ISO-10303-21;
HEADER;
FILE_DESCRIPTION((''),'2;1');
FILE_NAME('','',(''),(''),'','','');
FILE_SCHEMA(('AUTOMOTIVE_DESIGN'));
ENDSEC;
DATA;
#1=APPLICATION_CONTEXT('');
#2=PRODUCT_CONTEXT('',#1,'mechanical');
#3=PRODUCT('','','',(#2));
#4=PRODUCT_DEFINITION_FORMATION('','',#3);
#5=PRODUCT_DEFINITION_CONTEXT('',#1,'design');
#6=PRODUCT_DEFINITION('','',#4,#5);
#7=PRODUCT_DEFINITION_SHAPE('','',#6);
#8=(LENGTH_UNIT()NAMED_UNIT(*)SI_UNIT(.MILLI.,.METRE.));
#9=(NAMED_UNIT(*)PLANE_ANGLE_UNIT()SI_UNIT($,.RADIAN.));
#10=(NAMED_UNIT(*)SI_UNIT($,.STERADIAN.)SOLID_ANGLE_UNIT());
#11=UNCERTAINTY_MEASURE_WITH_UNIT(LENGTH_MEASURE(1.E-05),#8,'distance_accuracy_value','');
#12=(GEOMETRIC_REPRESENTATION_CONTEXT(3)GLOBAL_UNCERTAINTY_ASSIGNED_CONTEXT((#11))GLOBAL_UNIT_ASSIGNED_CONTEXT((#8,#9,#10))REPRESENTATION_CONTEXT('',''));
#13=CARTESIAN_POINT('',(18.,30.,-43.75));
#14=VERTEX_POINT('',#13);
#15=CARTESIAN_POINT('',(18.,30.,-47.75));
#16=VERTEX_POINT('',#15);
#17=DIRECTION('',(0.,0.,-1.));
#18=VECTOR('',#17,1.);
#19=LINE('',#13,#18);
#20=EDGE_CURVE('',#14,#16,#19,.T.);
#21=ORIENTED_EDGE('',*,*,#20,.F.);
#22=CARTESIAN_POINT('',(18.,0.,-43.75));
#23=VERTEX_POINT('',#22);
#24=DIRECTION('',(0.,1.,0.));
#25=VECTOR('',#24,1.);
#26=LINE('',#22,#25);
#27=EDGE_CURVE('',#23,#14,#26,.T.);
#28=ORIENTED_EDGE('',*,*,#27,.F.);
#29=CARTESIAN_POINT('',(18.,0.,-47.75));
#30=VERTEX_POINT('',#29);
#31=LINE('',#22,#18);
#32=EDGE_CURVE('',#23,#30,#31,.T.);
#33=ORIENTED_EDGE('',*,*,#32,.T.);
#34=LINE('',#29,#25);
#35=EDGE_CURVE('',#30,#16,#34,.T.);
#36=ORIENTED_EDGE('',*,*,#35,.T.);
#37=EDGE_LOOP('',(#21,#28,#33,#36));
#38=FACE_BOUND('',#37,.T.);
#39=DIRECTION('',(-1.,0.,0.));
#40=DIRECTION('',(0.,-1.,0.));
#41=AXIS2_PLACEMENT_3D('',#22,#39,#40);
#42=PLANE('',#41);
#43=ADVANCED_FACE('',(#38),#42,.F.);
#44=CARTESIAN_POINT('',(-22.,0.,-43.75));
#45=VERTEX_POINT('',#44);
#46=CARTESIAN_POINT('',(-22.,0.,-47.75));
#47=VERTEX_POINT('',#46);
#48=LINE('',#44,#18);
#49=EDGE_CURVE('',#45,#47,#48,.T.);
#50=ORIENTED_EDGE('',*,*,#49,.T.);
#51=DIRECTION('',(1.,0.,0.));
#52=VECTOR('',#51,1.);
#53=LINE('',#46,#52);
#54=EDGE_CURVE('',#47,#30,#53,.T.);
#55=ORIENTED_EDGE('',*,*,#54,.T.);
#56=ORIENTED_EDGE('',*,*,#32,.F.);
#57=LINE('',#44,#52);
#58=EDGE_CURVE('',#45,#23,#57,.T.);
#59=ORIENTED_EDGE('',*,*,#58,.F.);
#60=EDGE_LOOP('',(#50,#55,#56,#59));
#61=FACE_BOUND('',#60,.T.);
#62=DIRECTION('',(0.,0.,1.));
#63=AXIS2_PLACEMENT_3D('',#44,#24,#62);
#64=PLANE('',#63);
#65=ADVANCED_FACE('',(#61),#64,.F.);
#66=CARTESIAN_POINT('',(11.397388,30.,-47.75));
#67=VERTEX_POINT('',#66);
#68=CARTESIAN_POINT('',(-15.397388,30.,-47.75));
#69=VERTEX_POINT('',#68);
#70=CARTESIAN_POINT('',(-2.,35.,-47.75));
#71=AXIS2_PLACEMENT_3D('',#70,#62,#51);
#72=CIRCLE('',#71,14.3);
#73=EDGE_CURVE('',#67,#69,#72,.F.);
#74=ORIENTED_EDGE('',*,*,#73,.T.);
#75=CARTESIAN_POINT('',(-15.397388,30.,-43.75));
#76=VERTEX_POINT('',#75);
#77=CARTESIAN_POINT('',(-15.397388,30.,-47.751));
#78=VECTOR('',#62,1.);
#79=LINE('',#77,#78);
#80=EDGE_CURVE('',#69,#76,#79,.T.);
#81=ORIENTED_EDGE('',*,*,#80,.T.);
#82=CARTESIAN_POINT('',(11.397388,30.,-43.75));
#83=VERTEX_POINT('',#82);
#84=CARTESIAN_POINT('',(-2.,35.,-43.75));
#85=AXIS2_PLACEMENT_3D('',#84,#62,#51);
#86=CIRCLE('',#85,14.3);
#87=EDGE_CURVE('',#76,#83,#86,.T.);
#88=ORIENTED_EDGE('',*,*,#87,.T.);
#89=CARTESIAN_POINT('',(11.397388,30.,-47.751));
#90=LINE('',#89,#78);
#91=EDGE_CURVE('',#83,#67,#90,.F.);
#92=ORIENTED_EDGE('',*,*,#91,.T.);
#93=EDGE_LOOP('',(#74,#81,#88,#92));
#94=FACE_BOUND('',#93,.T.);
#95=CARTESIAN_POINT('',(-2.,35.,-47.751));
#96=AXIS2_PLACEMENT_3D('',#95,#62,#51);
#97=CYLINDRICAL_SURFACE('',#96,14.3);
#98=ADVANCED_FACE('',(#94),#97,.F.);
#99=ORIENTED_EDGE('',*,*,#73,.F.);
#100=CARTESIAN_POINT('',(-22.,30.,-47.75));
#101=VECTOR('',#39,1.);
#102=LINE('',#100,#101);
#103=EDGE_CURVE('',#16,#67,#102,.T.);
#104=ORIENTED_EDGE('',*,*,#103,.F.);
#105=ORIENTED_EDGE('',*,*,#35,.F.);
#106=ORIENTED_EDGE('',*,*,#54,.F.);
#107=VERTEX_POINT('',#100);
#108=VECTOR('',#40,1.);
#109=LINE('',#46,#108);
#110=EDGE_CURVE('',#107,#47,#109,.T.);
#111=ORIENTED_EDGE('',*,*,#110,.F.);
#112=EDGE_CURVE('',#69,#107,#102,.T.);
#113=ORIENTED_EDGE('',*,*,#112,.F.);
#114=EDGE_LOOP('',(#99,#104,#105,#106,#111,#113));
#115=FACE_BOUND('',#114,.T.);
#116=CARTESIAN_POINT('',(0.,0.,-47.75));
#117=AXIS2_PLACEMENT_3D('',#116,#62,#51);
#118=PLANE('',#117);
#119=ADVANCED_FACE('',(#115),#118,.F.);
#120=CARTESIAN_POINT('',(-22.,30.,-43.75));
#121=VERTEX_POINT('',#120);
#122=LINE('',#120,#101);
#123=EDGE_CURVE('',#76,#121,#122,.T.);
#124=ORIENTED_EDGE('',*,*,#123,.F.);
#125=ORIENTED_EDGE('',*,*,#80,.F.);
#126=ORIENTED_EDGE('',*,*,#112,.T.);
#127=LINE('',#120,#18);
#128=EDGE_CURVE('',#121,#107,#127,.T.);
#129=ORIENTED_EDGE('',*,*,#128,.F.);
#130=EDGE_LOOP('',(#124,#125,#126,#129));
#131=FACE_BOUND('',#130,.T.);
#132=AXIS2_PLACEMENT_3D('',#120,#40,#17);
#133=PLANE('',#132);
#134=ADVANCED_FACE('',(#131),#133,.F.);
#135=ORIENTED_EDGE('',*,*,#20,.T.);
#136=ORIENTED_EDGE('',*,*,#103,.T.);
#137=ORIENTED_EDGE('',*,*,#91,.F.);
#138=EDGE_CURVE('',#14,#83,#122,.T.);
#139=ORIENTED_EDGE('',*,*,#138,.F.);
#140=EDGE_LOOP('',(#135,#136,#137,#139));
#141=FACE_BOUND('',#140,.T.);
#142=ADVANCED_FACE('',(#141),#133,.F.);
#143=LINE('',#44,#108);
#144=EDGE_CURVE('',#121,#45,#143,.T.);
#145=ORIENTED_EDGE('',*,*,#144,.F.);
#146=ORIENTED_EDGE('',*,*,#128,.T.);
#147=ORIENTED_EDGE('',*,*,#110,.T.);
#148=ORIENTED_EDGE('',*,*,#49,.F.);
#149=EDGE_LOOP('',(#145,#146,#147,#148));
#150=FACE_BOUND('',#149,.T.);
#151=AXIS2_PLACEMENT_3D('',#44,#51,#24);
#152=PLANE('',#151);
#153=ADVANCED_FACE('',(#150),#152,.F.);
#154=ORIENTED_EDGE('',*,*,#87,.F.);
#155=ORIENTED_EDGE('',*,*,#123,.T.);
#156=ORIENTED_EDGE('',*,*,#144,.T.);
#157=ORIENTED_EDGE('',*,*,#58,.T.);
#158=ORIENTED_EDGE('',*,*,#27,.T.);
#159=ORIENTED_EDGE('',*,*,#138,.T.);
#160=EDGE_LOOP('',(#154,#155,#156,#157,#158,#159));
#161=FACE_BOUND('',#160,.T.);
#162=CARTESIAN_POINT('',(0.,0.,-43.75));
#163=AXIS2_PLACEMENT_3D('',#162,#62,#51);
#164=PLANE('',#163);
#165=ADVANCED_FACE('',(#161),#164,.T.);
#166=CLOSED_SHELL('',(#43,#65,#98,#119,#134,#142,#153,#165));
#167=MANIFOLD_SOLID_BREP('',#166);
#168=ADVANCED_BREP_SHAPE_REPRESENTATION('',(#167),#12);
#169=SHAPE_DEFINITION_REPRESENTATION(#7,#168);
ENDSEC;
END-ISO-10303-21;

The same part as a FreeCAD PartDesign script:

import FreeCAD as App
import Part
import Sketcher

V = App.Vector

doc = App.newDocument("Part")
body = doc.addObject("PartDesign::Body", "Body")

sketch1 = body.newObject("Sketcher::SketchObject", "Sketch")
sketch1.AttachmentSupport = (doc.getObject("XY_Plane"), [""])
sketch1.MapMode = "FlatFace"
sketch1.AttachmentOffset = App.Placement(V(0, 0, -47.75), App.Rotation())
sketch1.addGeometry(Part.LineSegment(V(-22, 30, 0), V(-22, 0, 0)), False)
sketch1.addGeometry(Part.LineSegment(V(-22, 0, 0), V(18, 0, 0)), False)
sketch1.addGeometry(Part.LineSegment(V(18, 0, 0), V(18, 30, 0)), False)
sketch1.addGeometry(Part.LineSegment(V(18, 30, 0), V(-22, 30, 0)), False)
sketch1.addConstraint(Sketcher.Constraint("Coincident", 0, 2, 1, 1))
sketch1.addConstraint(Sketcher.Constraint("Coincident", 1, 2, 2, 1))
sketch1.addConstraint(Sketcher.Constraint("Coincident", 2, 2, 3, 1))
sketch1.addConstraint(Sketcher.Constraint("Coincident", 3, 2, 0, 1))
sketch1.addConstraint(Sketcher.Constraint("Vertical", 0))
sketch1.addConstraint(Sketcher.Constraint("Horizontal", 1))
sketch1.addConstraint(Sketcher.Constraint("Vertical", 2))
sketch1.addConstraint(Sketcher.Constraint("Horizontal", 3))
sketch1.addConstraint(Sketcher.Constraint("PointOnObject", 0, 2, -1))
sketch1.addConstraint(Sketcher.Constraint("DistanceX", 1, 1, 1, 2, 40.0))
sketch1.addConstraint(Sketcher.Constraint("DistanceY", 0, 2, 0, 1, 30.0))
sketch1.addConstraint(Sketcher.Constraint("DistanceX", 0, 2, -1, 1, 22.0))
pad1 = body.newObject("PartDesign::Pad", "Pad")
pad1.Profile = sketch1
pad1.Length = 4

sketch2 = body.newObject("Sketcher::SketchObject", "Sketch001")
sketch2.AttachmentSupport = (doc.getObject("XY_Plane"), [""])
sketch2.MapMode = "FlatFace"
sketch2.AttachmentOffset = App.Placement(V(0, 0, -43.75), App.Rotation())
sketch2.addGeometry(Part.Circle(V(-2, 35, 0), V(0, 0, 1), 14), False)
sketch2.addConstraint(Sketcher.Constraint("Diameter", 0, 28.6))
sketch2.addConstraint(Sketcher.Constraint("DistanceX", 0, 3, -1, 1, 2.0))
sketch2.addConstraint(Sketcher.Constraint("DistanceY", -1, 1, 0, 3, 35.0))
pocket1 = body.newObject("PartDesign::Pocket", "Pocket")
pocket1.Profile = sketch2
pocket1.Length = 4

doc.recompute()
